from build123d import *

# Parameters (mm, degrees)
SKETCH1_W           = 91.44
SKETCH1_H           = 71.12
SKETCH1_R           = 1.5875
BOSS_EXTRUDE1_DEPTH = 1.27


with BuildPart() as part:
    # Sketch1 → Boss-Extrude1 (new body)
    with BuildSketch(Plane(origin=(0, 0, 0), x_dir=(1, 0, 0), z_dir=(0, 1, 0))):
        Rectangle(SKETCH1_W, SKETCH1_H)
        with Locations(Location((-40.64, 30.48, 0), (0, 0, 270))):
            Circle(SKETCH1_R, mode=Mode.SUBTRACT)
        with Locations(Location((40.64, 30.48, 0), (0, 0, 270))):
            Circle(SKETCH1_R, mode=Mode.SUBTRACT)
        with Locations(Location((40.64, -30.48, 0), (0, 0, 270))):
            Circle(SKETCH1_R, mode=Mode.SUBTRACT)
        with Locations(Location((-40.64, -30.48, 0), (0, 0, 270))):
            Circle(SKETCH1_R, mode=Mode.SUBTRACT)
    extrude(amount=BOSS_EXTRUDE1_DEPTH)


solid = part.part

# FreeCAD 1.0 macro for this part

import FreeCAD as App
import Part
import Sketcher

V = App.Vector
Q = App.Units.Quantity

doc = App.newDocument("Part")
body = doc.addObject("PartDesign::Body", "Body")

# Sketch on XZ plane
sketch1 = body.newObject("Sketcher::SketchObject", "Sketch")
sketch1.AttachmentSupport = (doc.getObject("XZ_Plane"), [""])
sketch1.MapMode = "FlatFace"
sketch1.addGeometry(Part.LineSegment(V(-45.7, -35.6, 0), V(-45.7, 35.6, 0)), False)
sketch1.addGeometry(Part.LineSegment(V(-45.7, 35.6, 0), V(45.7, 35.6, 0)), False)
sketch1.addGeometry(Part.LineSegment(V(45.7, 35.6, 0), V(45.7, -35.6, 0)), False)
sketch1.addGeometry(Part.LineSegment(V(45.7, -35.6, 0), V(-45.7, -35.6, 0)), False)
sketch1.addGeometry(Part.Circle(V(-40.6, 30.5, 0), V(0, 0, 1), 1.6), False)
sketch1.addGeometry(Part.Circle(V(40.6, 30.5, 0), V(0, 0, 1), 1.6), False)
sketch1.addGeometry(Part.Circle(V(-40.6, -30.5, 0), V(0, 0, 1), 1.6), False)
sketch1.addGeometry(Part.Circle(V(40.6, -30.5, 0), V(0, 0, 1), 1.6), False)
sketch1.addConstraint(Sketcher.Constraint("Coincident", 0, 2, 1, 1))
sketch1.addConstraint(Sketcher.Constraint("Coincident", 1, 2, 2, 1))
sketch1.addConstraint(Sketcher.Constraint("Coincident", 2, 2, 3, 1))
sketch1.addConstraint(Sketcher.Constraint("Coincident", 3, 2, 0, 1))
sketch1.addConstraint(Sketcher.Constraint("Vertical", 0))
sketch1.addConstraint(Sketcher.Constraint("Horizontal", 1))
sketch1.addConstraint(Sketcher.Constraint("Vertical", 2))
sketch1.addConstraint(Sketcher.Constraint("Horizontal", 3))
sketch1.addConstraint(Sketcher.Constraint("Equal", 4, 5))
sketch1.addConstraint(Sketcher.Constraint("Equal", 5, 6))
sketch1.addConstraint(Sketcher.Constraint("Equal", 6, 7))
sketch1.addConstraint(Sketcher.Constraint("Symmetric", 5, 3, 6, 3, -1, 1))
sketch1.addConstraint(Sketcher.Constraint("Symmetric", 4, 3, 7, 3, -1, 1))
sketch1.addConstraint(Sketcher.Constraint("Symmetric", 0, 2, 2, 2, -1, 1))
sketch1.addConstraint(Sketcher.Constraint("Symmetric", 4, 3, 5, 3, -2))
sketch1.addConstraint(Sketcher.Constraint("Diameter", 4, Q("0.125 in")))
sketch1.addConstraint(Sketcher.Constraint("DistanceX", 1, 1, 1, 2, Q("3.6 in")))
sketch1.addConstraint(Sketcher.Constraint("DistanceY", 0, 1, 0, 2, Q("2.8 in")))
sketch1.addConstraint(Sketcher.Constraint("DistanceX", 4, 3, -1, 1, Q("1.6 in")))
sketch1.addConstraint(Sketcher.Constraint("DistanceY", -1, 1, 4, 3, Q("1.2 in")))
pad1 = body.newObject("PartDesign::Pad", "Pad")
pad1.Profile = sketch1
pad1.Length = Q("0.05 in")
pad1.Reversed = True

doc.recompute()
